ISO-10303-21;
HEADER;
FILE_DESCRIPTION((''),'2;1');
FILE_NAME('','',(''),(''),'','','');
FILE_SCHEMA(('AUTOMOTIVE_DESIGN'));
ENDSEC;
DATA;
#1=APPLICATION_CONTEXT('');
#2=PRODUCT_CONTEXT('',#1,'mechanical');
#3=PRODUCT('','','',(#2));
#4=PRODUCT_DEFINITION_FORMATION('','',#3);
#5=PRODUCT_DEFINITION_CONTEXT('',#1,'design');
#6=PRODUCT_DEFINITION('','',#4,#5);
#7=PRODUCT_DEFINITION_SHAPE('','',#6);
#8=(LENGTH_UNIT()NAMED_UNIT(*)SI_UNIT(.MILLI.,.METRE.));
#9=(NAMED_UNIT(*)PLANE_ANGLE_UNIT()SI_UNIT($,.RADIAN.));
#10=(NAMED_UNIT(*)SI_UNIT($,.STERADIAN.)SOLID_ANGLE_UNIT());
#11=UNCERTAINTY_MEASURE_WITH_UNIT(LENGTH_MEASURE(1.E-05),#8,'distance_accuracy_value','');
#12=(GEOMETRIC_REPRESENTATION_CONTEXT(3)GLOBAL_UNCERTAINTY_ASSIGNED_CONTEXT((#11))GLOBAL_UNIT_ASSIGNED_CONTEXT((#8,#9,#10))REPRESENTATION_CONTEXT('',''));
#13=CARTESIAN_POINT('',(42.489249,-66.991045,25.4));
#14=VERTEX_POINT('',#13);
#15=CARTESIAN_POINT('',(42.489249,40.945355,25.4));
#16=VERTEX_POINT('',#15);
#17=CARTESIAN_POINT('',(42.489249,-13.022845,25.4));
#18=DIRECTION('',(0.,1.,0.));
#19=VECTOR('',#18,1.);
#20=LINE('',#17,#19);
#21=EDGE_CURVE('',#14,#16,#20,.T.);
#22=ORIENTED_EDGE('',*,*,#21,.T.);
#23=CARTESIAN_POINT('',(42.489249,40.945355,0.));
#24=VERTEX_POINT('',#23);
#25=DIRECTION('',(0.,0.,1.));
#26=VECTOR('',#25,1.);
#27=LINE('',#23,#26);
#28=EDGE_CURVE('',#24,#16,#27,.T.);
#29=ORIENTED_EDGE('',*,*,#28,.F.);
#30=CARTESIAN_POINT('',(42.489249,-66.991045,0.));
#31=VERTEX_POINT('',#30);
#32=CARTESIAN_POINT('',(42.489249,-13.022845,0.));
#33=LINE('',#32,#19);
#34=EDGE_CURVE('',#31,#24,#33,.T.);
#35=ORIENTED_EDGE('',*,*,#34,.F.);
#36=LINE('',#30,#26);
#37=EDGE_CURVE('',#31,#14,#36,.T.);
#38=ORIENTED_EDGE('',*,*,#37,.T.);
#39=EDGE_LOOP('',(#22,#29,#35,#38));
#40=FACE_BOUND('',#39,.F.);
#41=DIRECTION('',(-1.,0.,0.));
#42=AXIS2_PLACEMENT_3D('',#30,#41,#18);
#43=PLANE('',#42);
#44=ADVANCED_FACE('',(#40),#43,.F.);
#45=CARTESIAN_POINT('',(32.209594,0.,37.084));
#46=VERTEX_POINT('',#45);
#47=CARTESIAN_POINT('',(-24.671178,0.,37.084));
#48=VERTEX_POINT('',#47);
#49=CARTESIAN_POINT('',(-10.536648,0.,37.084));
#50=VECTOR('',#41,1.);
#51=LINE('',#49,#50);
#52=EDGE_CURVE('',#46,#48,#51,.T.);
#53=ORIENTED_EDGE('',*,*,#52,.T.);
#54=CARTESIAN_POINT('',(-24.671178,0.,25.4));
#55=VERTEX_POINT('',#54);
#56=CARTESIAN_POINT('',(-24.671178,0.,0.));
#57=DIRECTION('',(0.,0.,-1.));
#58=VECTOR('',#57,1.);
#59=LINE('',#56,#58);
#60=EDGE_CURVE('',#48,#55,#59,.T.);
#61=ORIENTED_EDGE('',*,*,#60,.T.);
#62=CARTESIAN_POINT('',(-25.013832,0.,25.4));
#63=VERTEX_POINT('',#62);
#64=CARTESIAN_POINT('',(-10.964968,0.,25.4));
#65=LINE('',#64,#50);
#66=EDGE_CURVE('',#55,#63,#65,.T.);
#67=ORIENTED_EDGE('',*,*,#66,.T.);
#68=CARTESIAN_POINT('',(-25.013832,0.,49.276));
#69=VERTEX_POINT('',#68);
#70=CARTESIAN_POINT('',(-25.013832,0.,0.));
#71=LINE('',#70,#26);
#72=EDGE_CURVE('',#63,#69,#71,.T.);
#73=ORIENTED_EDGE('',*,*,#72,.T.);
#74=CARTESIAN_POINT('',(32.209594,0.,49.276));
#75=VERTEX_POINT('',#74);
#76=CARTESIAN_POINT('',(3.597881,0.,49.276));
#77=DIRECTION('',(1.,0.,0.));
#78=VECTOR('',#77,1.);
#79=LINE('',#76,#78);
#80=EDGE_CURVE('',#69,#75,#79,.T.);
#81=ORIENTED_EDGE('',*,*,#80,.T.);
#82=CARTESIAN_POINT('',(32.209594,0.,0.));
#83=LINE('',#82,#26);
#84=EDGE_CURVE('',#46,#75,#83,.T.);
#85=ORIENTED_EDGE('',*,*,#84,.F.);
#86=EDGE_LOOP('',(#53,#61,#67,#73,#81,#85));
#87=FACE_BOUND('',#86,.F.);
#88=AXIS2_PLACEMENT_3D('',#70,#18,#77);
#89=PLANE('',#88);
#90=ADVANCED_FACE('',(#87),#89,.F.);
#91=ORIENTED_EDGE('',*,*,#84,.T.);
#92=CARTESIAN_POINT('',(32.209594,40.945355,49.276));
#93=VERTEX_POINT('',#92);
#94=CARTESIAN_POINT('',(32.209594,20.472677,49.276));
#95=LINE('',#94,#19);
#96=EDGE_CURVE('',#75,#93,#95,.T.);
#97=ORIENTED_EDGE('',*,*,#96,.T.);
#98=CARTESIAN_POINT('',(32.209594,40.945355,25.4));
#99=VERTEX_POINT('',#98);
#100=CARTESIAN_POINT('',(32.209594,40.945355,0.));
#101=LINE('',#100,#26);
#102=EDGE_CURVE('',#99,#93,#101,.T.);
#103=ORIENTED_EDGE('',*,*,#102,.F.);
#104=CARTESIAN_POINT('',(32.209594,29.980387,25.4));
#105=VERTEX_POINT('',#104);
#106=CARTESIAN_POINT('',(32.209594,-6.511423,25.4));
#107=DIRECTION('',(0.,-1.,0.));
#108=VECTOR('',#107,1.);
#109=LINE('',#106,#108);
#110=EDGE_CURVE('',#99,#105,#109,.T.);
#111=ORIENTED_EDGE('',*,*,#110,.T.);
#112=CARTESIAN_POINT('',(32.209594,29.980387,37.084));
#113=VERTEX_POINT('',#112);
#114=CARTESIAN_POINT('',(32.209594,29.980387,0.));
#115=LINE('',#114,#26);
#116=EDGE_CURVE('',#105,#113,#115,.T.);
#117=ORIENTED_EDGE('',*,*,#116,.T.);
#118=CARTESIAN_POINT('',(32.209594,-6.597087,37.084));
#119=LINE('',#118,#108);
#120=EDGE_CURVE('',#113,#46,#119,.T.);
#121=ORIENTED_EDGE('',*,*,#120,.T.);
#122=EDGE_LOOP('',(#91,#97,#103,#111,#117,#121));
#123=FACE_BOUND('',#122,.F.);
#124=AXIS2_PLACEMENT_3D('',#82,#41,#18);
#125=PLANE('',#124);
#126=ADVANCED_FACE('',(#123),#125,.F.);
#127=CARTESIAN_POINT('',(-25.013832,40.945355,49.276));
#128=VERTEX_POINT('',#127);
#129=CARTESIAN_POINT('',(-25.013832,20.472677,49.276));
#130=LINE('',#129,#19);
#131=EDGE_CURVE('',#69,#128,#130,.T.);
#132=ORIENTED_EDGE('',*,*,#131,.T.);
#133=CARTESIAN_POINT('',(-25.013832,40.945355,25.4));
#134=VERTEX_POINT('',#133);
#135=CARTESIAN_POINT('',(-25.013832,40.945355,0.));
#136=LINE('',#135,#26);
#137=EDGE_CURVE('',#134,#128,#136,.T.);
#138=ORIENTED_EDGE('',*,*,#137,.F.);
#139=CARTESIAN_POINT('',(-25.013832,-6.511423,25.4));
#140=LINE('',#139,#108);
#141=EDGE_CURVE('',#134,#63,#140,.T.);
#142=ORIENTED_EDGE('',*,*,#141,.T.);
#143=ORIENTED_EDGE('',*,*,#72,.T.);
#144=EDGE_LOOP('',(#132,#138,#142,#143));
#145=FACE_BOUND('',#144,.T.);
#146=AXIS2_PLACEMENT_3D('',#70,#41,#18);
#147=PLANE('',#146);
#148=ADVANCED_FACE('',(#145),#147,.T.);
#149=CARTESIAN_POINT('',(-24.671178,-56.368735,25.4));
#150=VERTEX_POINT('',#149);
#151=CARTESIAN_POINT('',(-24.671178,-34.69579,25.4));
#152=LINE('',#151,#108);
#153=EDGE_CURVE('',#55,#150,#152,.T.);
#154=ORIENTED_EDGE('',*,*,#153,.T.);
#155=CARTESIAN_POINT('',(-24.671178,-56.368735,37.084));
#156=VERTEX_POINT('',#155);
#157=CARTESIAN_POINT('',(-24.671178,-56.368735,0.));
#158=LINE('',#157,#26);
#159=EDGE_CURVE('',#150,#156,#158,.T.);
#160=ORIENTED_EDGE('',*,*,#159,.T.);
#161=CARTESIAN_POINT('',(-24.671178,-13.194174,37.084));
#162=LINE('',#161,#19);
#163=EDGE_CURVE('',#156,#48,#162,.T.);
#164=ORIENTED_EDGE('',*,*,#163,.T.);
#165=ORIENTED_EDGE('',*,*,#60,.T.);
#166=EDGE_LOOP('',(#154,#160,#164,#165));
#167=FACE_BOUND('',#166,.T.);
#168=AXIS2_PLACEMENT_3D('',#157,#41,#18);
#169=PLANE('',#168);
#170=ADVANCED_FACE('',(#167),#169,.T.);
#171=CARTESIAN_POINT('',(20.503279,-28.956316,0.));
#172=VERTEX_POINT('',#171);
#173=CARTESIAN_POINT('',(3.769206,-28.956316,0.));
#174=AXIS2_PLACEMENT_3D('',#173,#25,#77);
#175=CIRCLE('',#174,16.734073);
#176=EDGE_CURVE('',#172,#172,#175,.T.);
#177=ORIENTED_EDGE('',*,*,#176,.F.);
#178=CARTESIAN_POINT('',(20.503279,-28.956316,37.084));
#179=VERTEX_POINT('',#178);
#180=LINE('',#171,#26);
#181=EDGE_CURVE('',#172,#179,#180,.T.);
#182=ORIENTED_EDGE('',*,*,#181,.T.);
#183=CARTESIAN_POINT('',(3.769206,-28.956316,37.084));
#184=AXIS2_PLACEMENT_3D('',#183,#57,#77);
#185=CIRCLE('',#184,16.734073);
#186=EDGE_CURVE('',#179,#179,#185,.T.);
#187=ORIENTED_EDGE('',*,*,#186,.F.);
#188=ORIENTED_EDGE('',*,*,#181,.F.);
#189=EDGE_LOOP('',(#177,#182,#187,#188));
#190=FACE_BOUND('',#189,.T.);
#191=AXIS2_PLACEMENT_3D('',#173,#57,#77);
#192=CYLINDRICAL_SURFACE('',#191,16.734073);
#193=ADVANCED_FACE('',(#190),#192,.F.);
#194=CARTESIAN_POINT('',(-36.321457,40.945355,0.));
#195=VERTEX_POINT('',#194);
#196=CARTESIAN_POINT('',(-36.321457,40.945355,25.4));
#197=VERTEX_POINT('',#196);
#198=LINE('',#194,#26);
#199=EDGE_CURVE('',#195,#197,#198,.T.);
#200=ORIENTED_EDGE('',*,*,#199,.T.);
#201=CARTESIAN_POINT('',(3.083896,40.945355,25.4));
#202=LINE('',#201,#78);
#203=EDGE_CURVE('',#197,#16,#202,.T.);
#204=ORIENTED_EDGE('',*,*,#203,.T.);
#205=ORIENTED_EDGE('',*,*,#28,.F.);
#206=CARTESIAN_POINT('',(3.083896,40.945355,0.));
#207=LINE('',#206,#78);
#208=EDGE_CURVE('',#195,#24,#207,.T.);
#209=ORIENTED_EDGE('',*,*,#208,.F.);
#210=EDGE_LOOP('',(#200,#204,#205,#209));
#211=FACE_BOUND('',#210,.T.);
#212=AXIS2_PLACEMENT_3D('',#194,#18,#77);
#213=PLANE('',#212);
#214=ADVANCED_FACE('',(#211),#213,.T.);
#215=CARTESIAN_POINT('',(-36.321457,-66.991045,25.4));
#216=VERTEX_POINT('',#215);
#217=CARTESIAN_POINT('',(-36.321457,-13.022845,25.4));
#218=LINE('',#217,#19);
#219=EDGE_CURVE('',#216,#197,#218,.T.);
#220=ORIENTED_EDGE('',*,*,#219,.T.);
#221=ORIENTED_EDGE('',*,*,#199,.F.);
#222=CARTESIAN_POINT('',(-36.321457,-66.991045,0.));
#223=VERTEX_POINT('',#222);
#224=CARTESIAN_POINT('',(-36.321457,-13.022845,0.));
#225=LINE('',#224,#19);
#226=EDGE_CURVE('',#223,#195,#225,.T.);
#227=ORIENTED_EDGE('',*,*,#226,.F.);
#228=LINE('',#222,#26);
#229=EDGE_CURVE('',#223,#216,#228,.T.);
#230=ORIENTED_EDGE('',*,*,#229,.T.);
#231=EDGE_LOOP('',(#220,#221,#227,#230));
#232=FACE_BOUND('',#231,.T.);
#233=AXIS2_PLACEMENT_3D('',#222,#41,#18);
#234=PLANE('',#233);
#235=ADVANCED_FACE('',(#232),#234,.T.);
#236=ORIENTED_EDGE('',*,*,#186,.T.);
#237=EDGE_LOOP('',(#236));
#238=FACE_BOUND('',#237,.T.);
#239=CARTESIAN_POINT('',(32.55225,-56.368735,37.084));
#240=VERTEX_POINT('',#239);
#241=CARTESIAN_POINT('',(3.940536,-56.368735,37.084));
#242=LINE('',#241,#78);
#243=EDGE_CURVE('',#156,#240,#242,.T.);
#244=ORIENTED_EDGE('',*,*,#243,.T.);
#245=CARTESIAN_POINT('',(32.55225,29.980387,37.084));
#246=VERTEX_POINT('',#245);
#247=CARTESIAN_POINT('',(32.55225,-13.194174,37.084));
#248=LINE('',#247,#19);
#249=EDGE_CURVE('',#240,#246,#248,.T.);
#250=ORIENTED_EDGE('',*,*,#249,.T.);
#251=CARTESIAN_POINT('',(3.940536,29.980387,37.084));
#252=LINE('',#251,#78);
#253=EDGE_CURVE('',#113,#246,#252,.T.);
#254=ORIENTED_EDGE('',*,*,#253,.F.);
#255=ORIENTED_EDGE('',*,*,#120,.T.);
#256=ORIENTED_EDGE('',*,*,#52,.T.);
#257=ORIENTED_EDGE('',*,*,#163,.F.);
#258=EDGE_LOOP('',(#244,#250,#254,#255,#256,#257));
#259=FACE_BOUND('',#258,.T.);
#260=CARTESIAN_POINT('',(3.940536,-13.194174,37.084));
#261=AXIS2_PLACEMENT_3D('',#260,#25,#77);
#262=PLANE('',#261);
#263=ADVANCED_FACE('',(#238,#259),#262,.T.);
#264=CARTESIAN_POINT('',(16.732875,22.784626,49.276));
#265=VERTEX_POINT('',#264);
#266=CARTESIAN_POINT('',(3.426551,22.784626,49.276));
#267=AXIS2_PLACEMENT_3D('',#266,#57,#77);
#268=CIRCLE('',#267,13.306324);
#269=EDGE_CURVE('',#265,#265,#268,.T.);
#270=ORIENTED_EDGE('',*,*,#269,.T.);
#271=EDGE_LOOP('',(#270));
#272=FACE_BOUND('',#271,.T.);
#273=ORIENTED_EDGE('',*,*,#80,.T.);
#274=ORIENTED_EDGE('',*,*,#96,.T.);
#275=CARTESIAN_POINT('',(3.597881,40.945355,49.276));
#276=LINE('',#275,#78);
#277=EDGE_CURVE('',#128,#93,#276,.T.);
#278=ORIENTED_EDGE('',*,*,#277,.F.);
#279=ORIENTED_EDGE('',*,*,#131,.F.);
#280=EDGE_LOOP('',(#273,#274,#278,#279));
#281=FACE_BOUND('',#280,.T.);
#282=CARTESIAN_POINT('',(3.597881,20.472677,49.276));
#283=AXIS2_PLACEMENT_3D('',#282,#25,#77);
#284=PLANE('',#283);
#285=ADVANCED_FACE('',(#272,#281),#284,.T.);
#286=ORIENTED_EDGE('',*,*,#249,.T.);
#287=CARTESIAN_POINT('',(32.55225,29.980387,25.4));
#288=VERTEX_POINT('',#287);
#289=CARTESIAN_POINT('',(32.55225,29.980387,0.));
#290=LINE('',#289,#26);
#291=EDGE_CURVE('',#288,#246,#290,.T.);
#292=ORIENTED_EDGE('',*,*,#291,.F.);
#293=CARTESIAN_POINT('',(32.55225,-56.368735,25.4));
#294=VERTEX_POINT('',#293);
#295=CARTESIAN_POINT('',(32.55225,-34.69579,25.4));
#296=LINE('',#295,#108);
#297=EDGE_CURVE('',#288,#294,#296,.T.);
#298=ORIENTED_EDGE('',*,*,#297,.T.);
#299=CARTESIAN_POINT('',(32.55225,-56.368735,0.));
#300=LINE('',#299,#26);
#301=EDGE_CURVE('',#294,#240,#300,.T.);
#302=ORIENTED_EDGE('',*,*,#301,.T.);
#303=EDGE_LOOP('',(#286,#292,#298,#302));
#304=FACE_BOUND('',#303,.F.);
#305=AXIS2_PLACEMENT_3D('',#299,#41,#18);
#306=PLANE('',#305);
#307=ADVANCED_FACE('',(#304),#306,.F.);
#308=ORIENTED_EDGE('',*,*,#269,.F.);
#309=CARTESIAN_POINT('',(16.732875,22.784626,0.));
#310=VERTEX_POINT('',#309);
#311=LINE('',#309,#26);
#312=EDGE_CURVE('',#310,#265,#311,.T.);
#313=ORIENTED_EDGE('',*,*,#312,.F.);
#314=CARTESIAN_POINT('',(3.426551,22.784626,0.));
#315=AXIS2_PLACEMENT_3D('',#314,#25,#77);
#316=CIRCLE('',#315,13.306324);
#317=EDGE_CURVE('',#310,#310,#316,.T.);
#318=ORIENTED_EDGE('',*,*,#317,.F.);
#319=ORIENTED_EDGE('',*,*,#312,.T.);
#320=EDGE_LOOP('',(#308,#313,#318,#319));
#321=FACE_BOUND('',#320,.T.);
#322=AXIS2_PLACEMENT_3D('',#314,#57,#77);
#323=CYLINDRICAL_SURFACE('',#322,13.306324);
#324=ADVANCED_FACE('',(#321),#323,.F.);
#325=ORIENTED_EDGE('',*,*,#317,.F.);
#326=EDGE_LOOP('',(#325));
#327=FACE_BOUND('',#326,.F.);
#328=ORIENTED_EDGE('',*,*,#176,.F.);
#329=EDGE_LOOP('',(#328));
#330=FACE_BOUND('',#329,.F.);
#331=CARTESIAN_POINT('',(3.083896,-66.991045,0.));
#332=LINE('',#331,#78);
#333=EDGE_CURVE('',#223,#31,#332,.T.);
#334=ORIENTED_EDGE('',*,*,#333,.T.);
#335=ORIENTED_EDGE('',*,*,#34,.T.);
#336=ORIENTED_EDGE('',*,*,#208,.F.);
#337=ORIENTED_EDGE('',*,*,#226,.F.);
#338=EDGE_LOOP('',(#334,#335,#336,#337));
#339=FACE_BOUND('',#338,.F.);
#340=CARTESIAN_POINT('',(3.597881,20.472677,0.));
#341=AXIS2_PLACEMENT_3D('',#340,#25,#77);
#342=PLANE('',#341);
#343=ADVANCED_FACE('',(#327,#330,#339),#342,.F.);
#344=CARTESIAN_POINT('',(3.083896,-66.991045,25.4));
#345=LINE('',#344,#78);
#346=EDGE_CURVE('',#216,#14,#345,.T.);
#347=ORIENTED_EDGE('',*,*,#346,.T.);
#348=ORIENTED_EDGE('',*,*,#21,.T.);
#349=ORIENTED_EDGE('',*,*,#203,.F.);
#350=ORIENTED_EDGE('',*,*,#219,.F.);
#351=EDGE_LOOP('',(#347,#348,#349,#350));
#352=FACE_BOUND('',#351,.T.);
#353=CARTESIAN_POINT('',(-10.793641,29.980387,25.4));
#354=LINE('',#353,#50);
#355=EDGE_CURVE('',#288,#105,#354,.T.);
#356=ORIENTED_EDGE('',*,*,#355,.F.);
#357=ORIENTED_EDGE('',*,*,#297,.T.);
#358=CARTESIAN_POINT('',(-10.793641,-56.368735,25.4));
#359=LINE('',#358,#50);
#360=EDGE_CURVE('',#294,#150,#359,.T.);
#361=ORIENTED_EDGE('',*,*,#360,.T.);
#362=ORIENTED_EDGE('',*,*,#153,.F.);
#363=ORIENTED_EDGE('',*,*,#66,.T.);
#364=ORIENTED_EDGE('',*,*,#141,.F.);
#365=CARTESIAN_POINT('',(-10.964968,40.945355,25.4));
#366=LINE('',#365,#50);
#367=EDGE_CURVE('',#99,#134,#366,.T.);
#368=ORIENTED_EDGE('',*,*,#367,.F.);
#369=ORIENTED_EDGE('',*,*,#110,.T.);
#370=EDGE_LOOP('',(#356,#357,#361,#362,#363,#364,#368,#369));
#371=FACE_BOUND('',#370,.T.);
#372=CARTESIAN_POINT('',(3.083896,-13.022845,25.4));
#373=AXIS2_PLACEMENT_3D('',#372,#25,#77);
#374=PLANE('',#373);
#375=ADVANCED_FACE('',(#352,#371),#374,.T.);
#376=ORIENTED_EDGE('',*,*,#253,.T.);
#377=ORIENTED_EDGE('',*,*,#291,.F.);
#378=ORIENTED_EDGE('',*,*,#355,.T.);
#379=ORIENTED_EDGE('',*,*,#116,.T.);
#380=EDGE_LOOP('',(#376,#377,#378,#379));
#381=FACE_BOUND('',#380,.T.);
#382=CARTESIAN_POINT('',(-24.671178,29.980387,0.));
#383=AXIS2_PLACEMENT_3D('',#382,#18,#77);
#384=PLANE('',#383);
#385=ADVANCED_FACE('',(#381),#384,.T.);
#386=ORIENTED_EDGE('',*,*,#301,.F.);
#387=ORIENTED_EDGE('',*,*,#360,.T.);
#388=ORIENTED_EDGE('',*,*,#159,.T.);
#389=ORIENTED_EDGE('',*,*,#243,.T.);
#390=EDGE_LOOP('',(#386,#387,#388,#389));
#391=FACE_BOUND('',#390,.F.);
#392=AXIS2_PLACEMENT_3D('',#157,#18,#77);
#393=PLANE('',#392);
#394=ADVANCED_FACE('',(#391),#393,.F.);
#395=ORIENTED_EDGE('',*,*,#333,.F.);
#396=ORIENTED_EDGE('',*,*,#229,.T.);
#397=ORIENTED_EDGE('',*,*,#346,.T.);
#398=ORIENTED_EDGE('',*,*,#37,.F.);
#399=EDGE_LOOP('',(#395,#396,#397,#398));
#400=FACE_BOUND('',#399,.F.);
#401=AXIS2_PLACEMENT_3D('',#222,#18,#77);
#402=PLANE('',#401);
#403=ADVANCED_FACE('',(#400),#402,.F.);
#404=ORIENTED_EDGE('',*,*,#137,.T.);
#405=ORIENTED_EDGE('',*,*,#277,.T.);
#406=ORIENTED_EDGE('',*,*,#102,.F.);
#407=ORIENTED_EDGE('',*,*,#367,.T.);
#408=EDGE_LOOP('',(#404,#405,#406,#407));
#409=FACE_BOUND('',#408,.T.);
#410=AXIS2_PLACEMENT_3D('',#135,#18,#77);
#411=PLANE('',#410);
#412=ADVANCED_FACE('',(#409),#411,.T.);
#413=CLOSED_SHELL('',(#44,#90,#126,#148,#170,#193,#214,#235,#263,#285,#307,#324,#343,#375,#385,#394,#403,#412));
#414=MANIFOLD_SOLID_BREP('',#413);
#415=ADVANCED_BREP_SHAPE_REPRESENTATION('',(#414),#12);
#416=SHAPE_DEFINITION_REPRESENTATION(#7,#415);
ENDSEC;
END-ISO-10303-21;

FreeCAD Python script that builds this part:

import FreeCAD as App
import Part
import Sketcher
Q = App.Units.Quantity


def add_polygon(sketch, points):
    """Adds a closed chain of lines whose ends are joined by coincident constraints."""
    first, n = sketch.GeometryCount, len(points)
    for a, b in zip(points, points[1:] + points[:1]):
        sketch.addGeometry(Part.LineSegment(App.Vector(*a, 0), App.Vector(*b, 0)), False)
    for i in range(n):
        sketch.addConstraint(Sketcher.Constraint("Coincident", first + i, 2, first + (i + 1) % n, 1))

doc = App.newDocument("Part")
body = doc.addObject("PartDesign::Body", "Body")

# Sketch on XY plane
sketch1 = body.newObject("Sketcher::SketchObject", "Sketch")
sketch1.AttachmentSupport = (doc.getObject("XY_Plane"), [""])
sketch1.MapMode = "FlatFace"
add_polygon(sketch1, [(-36, 41), (-36, -67), (42, -67), (42, 41)])  # lines 0-3
sketch1.addConstraint([
    Sketcher.Constraint("Vertical", 0),
    Sketcher.Constraint("Horizontal", 1),
    Sketcher.Constraint("Vertical", 2),
    Sketcher.Constraint("Horizontal", 3),
    Sketcher.Constraint("DistanceY", 0, 2, 0, 1, Q("107.936401 mm")),
    Sketcher.Constraint("DistanceX", 1, 1, 1, 2, Q("78.810706 mm")),
    Sketcher.Constraint("DistanceX", -1, 1, 1, 2, Q("42.489249 mm")),
    Sketcher.Constraint("DistanceY", 0, 2, -1, 1, Q("66.991045 mm")),
])
pad1 = body.newObject("PartDesign::Pad", "Pad")
pad1.Profile = sketch1
pad1.Length = Q("1 in")

# Sketch on XY plane
sketch2 = body.newObject("Sketcher::SketchObject", "Sketch001")
sketch2.AttachmentSupport = (doc.getObject("XY_Plane"), [""])
sketch2.MapMode = "FlatFace"
add_polygon(sketch2, [(-25, 30), (-25, -56), (33, -56), (33, 30)])  # lines 0-3
sketch2.addConstraint([
    Sketcher.Constraint("Vertical", 0),
    Sketcher.Constraint("Horizontal", 1),
    Sketcher.Constraint("Vertical", 2),
    Sketcher.Constraint("Horizontal", 3),
    Sketcher.Constraint("DistanceX", 1, 1, 1, 2, Q("57.223428 mm")),
    Sketcher.Constraint("DistanceY", 0, 2, 0, 1, Q("86.349123 mm")),
    Sketcher.Constraint("DistanceX", 0, 2, -1, 1, Q("24.671178 mm")),
    Sketcher.Constraint("DistanceY", 0, 2, -1, 1, Q("56.368735 mm")),
])
pad2 = body.newObject("PartDesign::Pad", "Pad001")
pad2.Profile = sketch2
pad2.Length = Q("1.46 in")

# Sketch on XY plane
sketch3 = body.newObject("Sketcher::SketchObject", "Sketch002")
sketch3.AttachmentSupport = (doc.getObject("XY_Plane"), [""])
sketch3.MapMode = "FlatFace"
add_polygon(sketch3, [(-25, 41), (-25, 0), (32, 0), (32, 41)])  # lines 0-3
sketch3.addConstraint([
    Sketcher.Constraint("Vertical", 0),
    Sketcher.Constraint("Horizontal", 1),
    Sketcher.Constraint("Vertical", 2),
    Sketcher.Constraint("Horizontal", 3),
    Sketcher.Constraint("PointOnObject", 0, 2, -1),
    Sketcher.Constraint("DistanceX", 1, 1, 1, 2, Q("57.223426 mm")),
    Sketcher.Constraint("DistanceY", 0, 2, 0, 1, Q("40.945355 mm")),
    Sketcher.Constraint("DistanceX", 0, 2, -1, 1, Q("25.013832 mm")),
])
pad3 = body.newObject("PartDesign::Pad", "Pad002")
pad3.Profile = sketch3
pad3.Length = Q("1.94 in")

# Sketch on XY plane
sketch4 = body.newObject("Sketcher::SketchObject", "Sketch003")
sketch4.AttachmentSupport = (doc.getObject("XY_Plane"), [""])
sketch4.MapMode = "FlatFace"
sketch4.addGeometry(Part.Circle(App.Vector(3, 23, 0), App.Vector(0, 0, 1), 13), False)
sketch4.addConstraint([
    Sketcher.Constraint("Diameter", 0, Q("26.612648 mm")),
    Sketcher.Constraint("DistanceX", -1, 1, 0, 3, Q("3.426551 mm")),
    Sketcher.Constraint("DistanceY", -1, 1, 0, 3, Q("22.784626 mm")),
])
pocket1 = body.newObject("PartDesign::Pocket", "Pocket")
pocket1.Profile = sketch4
pocket1.Length = Q("3.64 in")
pocket1.Reversed = True

# Sketch on XY plane
sketch5 = body.newObject("Sketcher::SketchObject", "Sketch004")
sketch5.AttachmentSupport = (doc.getObject("XY_Plane"), [""])
sketch5.MapMode = "FlatFace"
sketch5.addGeometry(Part.Circle(App.Vector(4, -29, 0), App.Vector(0, 0, 1), 17), False)
sketch5.addConstraint([
    Sketcher.Constraint("Diameter", 0, Q("33.468146 mm")),
    Sketcher.Constraint("DistanceX", -1, 1, 0, 3, Q("3.769206 mm")),
    Sketcher.Constraint("DistanceY", 0, 3, -1, 1, Q("28.956316 mm")),
])
pocket2 = body.newObject("PartDesign::Pocket", "Pocket001")
pocket2.Profile = sketch5
pocket2.Length = Q("3.03 in")
pocket2.Reversed = True

doc.recompute()
